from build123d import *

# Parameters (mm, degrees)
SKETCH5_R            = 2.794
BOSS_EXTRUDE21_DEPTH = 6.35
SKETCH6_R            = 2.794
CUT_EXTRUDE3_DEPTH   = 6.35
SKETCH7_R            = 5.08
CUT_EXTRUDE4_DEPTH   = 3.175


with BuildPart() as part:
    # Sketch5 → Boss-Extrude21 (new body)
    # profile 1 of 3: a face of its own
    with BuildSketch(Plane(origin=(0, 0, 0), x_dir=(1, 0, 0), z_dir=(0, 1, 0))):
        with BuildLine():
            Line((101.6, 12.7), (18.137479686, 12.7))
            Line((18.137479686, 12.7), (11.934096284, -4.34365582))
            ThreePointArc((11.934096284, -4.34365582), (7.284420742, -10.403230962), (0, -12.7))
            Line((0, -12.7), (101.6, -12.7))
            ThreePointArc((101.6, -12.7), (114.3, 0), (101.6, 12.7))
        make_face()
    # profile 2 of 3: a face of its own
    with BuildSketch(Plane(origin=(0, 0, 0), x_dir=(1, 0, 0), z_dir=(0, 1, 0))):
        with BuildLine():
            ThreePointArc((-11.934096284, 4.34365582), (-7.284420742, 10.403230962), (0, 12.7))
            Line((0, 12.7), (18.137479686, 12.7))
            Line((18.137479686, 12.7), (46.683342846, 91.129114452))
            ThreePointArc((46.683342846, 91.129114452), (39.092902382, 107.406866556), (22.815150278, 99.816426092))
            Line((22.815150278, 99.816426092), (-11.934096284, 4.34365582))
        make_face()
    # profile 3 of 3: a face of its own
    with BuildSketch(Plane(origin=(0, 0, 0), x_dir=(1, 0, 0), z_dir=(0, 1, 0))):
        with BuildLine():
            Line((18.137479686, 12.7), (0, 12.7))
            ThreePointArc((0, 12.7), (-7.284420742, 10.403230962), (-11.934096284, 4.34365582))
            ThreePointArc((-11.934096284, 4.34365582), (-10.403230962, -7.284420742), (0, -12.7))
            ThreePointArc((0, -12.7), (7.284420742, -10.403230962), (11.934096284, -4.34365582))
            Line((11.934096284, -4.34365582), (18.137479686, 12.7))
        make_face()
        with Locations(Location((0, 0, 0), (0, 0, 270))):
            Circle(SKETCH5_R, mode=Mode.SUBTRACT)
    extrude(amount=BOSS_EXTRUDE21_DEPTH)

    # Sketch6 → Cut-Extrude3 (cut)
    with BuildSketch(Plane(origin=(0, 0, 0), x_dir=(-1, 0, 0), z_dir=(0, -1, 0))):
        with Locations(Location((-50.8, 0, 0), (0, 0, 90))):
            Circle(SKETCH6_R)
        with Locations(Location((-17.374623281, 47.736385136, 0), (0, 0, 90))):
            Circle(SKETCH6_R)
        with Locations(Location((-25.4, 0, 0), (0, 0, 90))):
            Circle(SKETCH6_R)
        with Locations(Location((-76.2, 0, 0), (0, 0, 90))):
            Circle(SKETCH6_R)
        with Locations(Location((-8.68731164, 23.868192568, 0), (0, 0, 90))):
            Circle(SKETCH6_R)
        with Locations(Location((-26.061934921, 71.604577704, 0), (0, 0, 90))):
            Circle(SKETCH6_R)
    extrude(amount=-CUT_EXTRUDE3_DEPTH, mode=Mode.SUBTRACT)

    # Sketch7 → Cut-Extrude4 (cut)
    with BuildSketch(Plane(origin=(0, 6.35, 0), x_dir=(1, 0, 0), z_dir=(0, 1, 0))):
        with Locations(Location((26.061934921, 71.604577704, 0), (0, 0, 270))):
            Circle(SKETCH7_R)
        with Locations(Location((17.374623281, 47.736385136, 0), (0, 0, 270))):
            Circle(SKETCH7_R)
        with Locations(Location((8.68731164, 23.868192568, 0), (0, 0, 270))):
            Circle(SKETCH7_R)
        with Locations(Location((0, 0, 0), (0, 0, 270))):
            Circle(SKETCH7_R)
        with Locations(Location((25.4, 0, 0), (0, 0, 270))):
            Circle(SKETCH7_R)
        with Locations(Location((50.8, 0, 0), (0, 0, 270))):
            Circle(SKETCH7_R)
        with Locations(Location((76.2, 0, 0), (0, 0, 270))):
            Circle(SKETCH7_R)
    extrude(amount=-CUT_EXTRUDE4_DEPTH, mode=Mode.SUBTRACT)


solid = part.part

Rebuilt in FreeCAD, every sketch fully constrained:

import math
import FreeCAD as App
import Part
import Sketcher
Q = App.Units.Quantity

doc = App.newDocument("Part")
body = doc.addObject("PartDesign::Body", "Body")

sketch1 = body.newObject("Sketcher::SketchObject", "Sketch")
sketch1.AttachmentSupport = (doc.getObject("XZ_Plane"), [""])
sketch1.MapMode = "FlatFace"
sketch1.addGeometry([
    Part.LineSegment(App.Vector(101.6, -12.7, 0), App.Vector(18.13748, -12.7, 0)),
    Part.LineSegment(App.Vector(18.13748, -12.7, 0), App.Vector(46.683343, -91.129114, 0)),
    Part.ArcOfCircle(Part.Circle(App.Vector(34.749247, -95.47277, 0), App.Vector(0, 0, 1), 12.7), math.radians(-160), math.radians(20)),
    Part.LineSegment(App.Vector(22.81515, -99.816426, 0), App.Vector(-11.934096, -4.343656, 0)),
    Part.ArcOfCircle(Part.Circle(App.Vector(0, 0, 0), App.Vector(0, 0, 1), 12.7), math.radians(90), math.radians(200)),
    Part.LineSegment(App.Vector(0, 12.7, 0), App.Vector(101.6, 12.7, 0)),
    Part.ArcOfCircle(Part.Circle(App.Vector(101.6, 0, 0), App.Vector(0, 0, 1), 12.7), math.radians(-90), math.radians(90)),
    Part.Circle(App.Vector(0, 0, 0), App.Vector(0, 0, 1), 2.794),
], False)
sketch1.addConstraint([
    Sketcher.Constraint("Coincident", 0, 2, 1, 1),
    Sketcher.Constraint("Tangent", 1, 2, 2, 2),
    Sketcher.Constraint("Tangent", 2, 1, 3, 1),
    Sketcher.Constraint("Tangent", 3, 2, 4, 2),
    Sketcher.Constraint("Tangent", 4, 1, 5, 1),
    Sketcher.Constraint("Tangent", 5, 2, 6, 2),
    Sketcher.Constraint("Tangent", 6, 1, 0, 1),
    Sketcher.Constraint("Horizontal", 0),
    Sketcher.Constraint("Horizontal", 5),
    Sketcher.Constraint("Coincident", 4, 3, -1, 1),
    Sketcher.Constraint("Coincident", 7, 3, -1, 1),
    Sketcher.Constraint("Equal", 2, 4),
    Sketcher.Constraint("Equal", 4, 6),
    Sketcher.Constraint("Parallel", 1, 3),
    Sketcher.Constraint("Radius", 2, Q("0.5 in")),
    Sketcher.Constraint("Diameter", 7, Q("0.22 in")),
    Sketcher.Constraint("DistanceX", 5, 1, 5, 2, Q("4 in")),
    Sketcher.Constraint("Distance", 3, Q("4 in")),
    Sketcher.Constraint("Angle", 1, Q("-70 deg")),
])
pad1 = body.newObject("PartDesign::Pad", "Pad")
pad1.Profile = sketch1
pad1.Length = Q("0.25 in")
pad1.Reversed = True

sketch2 = body.newObject("Sketcher::SketchObject", "Sketch001")
sketch2.AttachmentSupport = (doc.getObject("XZ_Plane"), [""])
sketch2.MapMode = "FlatFace"
sketch2.addGeometry([
    Part.Circle(App.Vector(50.8, 0, 0), App.Vector(0, 0, 1), 2.794),
    Part.Circle(App.Vector(17.374623, -47.736385, 0), App.Vector(0, 0, 1), 2.794),
    Part.Circle(App.Vector(25.4, 0, 0), App.Vector(0, 0, 1), 2.794),
    Part.Circle(App.Vector(76.2, 0, 0), App.Vector(0, 0, 1), 2.794),
    Part.Circle(App.Vector(8.687312, -23.868193, 0), App.Vector(0, 0, 1), 2.794),
    Part.Circle(App.Vector(26.061935, -71.604578, 0), App.Vector(0, 0, 1), 2.794),
], False)
sketch2.addConstraint([
    Sketcher.Constraint("Equal", 0, 1),
    Sketcher.Constraint("Equal", 1, 2),
    Sketcher.Constraint("Equal", 2, 3),
    Sketcher.Constraint("Equal", 3, 4),
    Sketcher.Constraint("Equal", 4, 5),
    Sketcher.Constraint("PointOnObject", 0, 3, -1),
    Sketcher.Constraint("PointOnObject", 2, 3, -1),
    Sketcher.Constraint("PointOnObject", 3, 3, -1),
    Sketcher.Constraint("Diameter", 0, Q("0.22 in")),
    Sketcher.Constraint("DistanceX", -1, 1, 0, 3, Q("2 in")),
    Sketcher.Constraint("DistanceX", -1, 1, 2, 3, Q("1 in")),
    Sketcher.Constraint("DistanceX", -1, 1, 3, 3, Q("3 in")),
    Sketcher.Constraint("DistanceX", -1, 1, 4, 3, 8.687312),
    Sketcher.Constraint("DistanceX", 4, 3, 1, 3, 8.687312),
    Sketcher.Constraint("DistanceX", 1, 3, 5, 3, 8.687312),
    Sketcher.Constraint("DistanceY", 1, 3, -1, 1, 47.736385),
    Sketcher.Constraint("DistanceY", 4, 3, -1, 1, 23.868193),
    Sketcher.Constraint("DistanceY", 5, 3, -1, 1, 71.604578),
])
pocket1 = body.newObject("PartDesign::Pocket", "Pocket")
pocket1.Profile = sketch2
pocket1.Length = Q("0.25 in")

sketch3 = body.newObject("Sketcher::SketchObject", "Sketch002")
sketch3.AttachmentSupport = (doc.getObject("XZ_Plane"), [""])
sketch3.MapMode = "FlatFace"
sketch3.AttachmentOffset = App.Placement(App.Vector(0, 0, -0.25 * 25.4), App.Rotation())
sketch3.addGeometry([
    Part.Circle(App.Vector(26.061935, -71.604578, 0), App.Vector(0, 0, 1), 5.08),
    Part.Circle(App.Vector(17.374623, -47.736385, 0), App.Vector(0, 0, 1), 5.08),
    Part.Circle(App.Vector(8.687312, -23.868193, 0), App.Vector(0, 0, 1), 5.08),
    Part.Circle(App.Vector(0, 0, 0), App.Vector(0, 0, 1), 5.08),
    Part.Circle(App.Vector(25.4, 0, 0), App.Vector(0, 0, 1), 5.08),
    Part.Circle(App.Vector(50.8, 0, 0), App.Vector(0, 0, 1), 5.08),
    Part.Circle(App.Vector(76.2, 0, 0), App.Vector(0, 0, 1), 5.08),
], False)
sketch3.addConstraint([
    Sketcher.Constraint("Coincident", 3, 3, -1, 1),
    Sketcher.Constraint("Equal", 0, 1),
    Sketcher.Constraint("Equal", 1, 2),
    Sketcher.Constraint("Equal", 2, 3),
    Sketcher.Constraint("Equal", 3, 4),
    Sketcher.Constraint("Equal", 4, 5),
    Sketcher.Constraint("Equal", 5, 6),
    Sketcher.Constraint("PointOnObject", 4, 3, -1),
    Sketcher.Constraint("PointOnObject", 5, 3, -1),
    Sketcher.Constraint("PointOnObject", 6, 3, -1),
    Sketcher.Constraint("Diameter", 0, Q("0.4 in")),
    Sketcher.Constraint("DistanceX", -1, 1, 4, 3, Q("1 in")),
    Sketcher.Constraint("DistanceX", -1, 1, 5, 3, Q("2 in")),
    Sketcher.Constraint("DistanceX", -1, 1, 6, 3, Q("3 in")),
    Sketcher.Constraint("DistanceX", -1, 1, 2, 3, 8.687312),
    Sketcher.Constraint("DistanceX", 1, 3, 0, 3, 8.687312),
    Sketcher.Constraint("DistanceX", 2, 3, 1, 3, 8.687312),
    Sketcher.Constraint("DistanceY", 0, 3, -1, 1, 71.604578),
    Sketcher.Constraint("DistanceY", 1, 3, -1, 1, 47.736385),
    Sketcher.Constraint("DistanceY", 2, 3, -1, 1, 23.868193),
])
pocket2 = body.newObject("PartDesign::Pocket", "Pocket001")
pocket2.Profile = sketch3
pocket2.Length = Q("0.125 in")
pocket2.Reversed = True

doc.recompute()
